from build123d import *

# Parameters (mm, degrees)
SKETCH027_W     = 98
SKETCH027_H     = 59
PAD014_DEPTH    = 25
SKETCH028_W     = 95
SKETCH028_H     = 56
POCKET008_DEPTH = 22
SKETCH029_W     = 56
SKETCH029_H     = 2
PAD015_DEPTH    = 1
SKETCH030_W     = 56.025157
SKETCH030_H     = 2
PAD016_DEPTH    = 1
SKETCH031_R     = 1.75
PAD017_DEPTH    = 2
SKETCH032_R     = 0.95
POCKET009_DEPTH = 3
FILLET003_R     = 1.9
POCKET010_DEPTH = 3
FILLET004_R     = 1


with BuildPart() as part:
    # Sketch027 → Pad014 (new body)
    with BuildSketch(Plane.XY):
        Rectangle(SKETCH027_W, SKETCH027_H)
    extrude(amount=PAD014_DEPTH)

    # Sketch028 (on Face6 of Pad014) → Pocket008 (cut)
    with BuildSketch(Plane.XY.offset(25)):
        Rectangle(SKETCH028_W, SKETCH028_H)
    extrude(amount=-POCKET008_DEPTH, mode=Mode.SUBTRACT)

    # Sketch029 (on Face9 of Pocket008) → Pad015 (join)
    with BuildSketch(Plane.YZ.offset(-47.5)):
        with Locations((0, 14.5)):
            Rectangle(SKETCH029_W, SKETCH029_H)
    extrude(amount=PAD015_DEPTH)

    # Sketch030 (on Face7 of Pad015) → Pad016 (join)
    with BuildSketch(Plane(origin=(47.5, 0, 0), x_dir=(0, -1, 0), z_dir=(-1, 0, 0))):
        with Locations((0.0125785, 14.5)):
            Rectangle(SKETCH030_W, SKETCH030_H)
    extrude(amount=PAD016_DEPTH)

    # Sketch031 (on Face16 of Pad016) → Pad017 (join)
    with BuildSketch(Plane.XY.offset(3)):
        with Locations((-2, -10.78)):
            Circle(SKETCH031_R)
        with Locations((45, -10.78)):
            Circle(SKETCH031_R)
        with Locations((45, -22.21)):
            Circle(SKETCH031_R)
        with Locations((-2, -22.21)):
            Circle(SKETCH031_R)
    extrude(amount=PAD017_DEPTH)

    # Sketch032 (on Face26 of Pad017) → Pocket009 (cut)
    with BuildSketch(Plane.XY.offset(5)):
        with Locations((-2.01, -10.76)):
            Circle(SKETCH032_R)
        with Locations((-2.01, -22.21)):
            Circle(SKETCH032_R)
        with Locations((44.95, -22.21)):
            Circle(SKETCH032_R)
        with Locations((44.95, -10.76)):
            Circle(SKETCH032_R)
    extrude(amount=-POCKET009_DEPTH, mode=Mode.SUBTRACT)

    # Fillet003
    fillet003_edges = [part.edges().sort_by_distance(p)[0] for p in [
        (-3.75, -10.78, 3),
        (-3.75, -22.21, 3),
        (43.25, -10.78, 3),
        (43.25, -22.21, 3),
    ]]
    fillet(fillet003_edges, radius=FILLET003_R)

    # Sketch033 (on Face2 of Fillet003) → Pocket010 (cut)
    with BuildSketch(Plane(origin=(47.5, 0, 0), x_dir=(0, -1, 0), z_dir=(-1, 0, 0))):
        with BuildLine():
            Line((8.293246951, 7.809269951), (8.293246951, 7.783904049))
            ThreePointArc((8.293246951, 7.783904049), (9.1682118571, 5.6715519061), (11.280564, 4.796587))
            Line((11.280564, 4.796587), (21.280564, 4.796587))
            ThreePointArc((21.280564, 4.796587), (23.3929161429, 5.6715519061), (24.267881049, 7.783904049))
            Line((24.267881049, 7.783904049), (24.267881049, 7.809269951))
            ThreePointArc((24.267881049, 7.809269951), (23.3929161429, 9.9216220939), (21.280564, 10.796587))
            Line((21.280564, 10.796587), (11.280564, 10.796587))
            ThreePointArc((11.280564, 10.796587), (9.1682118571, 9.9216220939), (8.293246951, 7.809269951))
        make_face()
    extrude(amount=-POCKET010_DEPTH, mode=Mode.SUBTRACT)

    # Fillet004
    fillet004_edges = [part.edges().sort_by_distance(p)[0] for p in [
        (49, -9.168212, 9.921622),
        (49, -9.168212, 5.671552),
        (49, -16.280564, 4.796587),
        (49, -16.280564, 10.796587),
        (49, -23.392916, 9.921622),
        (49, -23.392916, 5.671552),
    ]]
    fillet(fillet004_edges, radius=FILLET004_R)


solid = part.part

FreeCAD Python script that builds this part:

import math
import FreeCAD as App
import Part
import Sketcher

V = App.Vector


def edges_at(feature, points):
    """Names of the edges that pass closest to the given points."""
    edges = feature.Shape.Edges
    near = lambda p: min(range(len(edges)), key=lambda i: edges[i].distToShape(Part.Vertex(*p))[0])
    return sorted({f"Edge{near(p) + 1}" for p in points})


def add_polygon(sketch, points):
    """Adds a closed chain of lines whose ends are joined by coincident constraints."""
    first, n = sketch.GeometryCount, len(points)
    for a, b in zip(points, points[1:] + points[:1]):
        sketch.addGeometry(Part.LineSegment(App.Vector(*a, 0), App.Vector(*b, 0)), False)
    for i in range(n):
        sketch.addConstraint(Sketcher.Constraint("Coincident", first + i, 2, first + (i + 1) % n, 1))

doc = App.newDocument("Part")
body = doc.addObject("PartDesign::Body", "Body")

# Sketch on XY plane
sketch1 = doc.addObject("Sketcher::SketchObject", "Sketch")
body.addObject(sketch1)
sketch1.AttachmentSupport = (doc.XY_Plane, [""])
sketch1.MapMode = "FlatFace"
add_polygon(sketch1, [(-49, 30), (-49, -30), (49, -30), (49, 30)])  # lines 0-3
sketch1.addConstraint([
    Sketcher.Constraint("Vertical", 0),
    Sketcher.Constraint("Horizontal", 1),
    Sketcher.Constraint("Vertical", 2),
    Sketcher.Constraint("Horizontal", 3),
    Sketcher.Constraint("Symmetric", 0, 2, 2, 2, -1, 1),
    Sketcher.Constraint("DistanceX", 1, 1, 1, 2, 98.0),
    Sketcher.Constraint("DistanceY", 0, 2, 0, 1, 59.0),
])
pad1 = doc.addObject("PartDesign::Pad", "Pad")
body.addObject(pad1)
pad1.Profile = sketch1
pad1.Length = 25

# Sketch on XY plane
sketch2 = doc.addObject("Sketcher::SketchObject", "Sketch001")
body.addObject(sketch2)
sketch2.AttachmentSupport = (doc.XY_Plane, [""])
sketch2.MapMode = "FlatFace"
sketch2.AttachmentOffset = App.Placement(V(0, 0, 25), App.Rotation())
add_polygon(sketch2, [(-48, 28), (-48, -28), (48, -28), (48, 28)])  # lines 0-3
sketch2.addConstraint([
    Sketcher.Constraint("Vertical", 0),
    Sketcher.Constraint("Horizontal", 1),
    Sketcher.Constraint("Vertical", 2),
    Sketcher.Constraint("Horizontal", 3),
    Sketcher.Constraint("Symmetric", 0, 2, 2, 2, -1, 1),
    Sketcher.Constraint("DistanceX", 1, 1, 1, 2, 95.0),
    Sketcher.Constraint("DistanceY", 0, 2, 0, 1, 56.0),
])
pocket1 = doc.addObject("PartDesign::Pocket", "Pocket")
body.addObject(pocket1)
pocket1.Profile = sketch2
pocket1.Length = 22

# Sketch on YZ plane
sketch3 = doc.addObject("Sketcher::SketchObject", "Sketch002")
body.addObject(sketch3)
sketch3.AttachmentSupport = (doc.YZ_Plane, [""])
sketch3.MapMode = "FlatFace"
sketch3.AttachmentOffset = App.Placement(V(0, 0, -47.5), App.Rotation())
add_polygon(sketch3, [(-28, 15.5), (-28, 13.5), (28, 13.5), (28, 15.5)])  # lines 0-3
sketch3.addConstraint([
    Sketcher.Constraint("Vertical", 0),
    Sketcher.Constraint("Horizontal", 1),
    Sketcher.Constraint("Vertical", 2),
    Sketcher.Constraint("Horizontal", 3),
    Sketcher.Constraint("DistanceX", 1, 1, 1, 2, 56.0),
    Sketcher.Constraint("DistanceY", 0, 2, 0, 1, 2.0),
    Sketcher.Constraint("DistanceX", 0, 2, -1, 1, 28.0),
    Sketcher.Constraint("DistanceY", -1, 1, 0, 2, 13.5),
])
pad2 = doc.addObject("PartDesign::Pad", "Pad001")
body.addObject(pad2)
pad2.Profile = sketch3
pad2.Length = 1

# Sketch on YZ plane
sketch4 = doc.addObject("Sketcher::SketchObject", "Sketch003")
body.addObject(sketch4)
sketch4.AttachmentSupport = (doc.YZ_Plane, [""])
sketch4.MapMode = "FlatFace"
sketch4.AttachmentOffset = App.Placement(V(0, 0, 47.5), App.Rotation())
add_polygon(sketch4, [(28, 15.5), (28, 13.5), (-28, 13.5), (-28, 15.5)])  # lines 0-3
sketch4.addConstraint([
    Sketcher.Constraint("Vertical", 0),
    Sketcher.Constraint("Horizontal", 1),
    Sketcher.Constraint("Vertical", 2),
    Sketcher.Constraint("Horizontal", 3),
    Sketcher.Constraint("DistanceY", 0, 2, 0, 1, 2.0),
    Sketcher.Constraint("DistanceX", -1, 1, 0, 2, 28.0),
    Sketcher.Constraint("DistanceY", -1, 1, 0, 2, 13.5),
    Sketcher.Constraint("DistanceX", 1, 2, 1, 1, 56.025157),
])
pad3 = doc.addObject("PartDesign::Pad", "Pad002")
body.addObject(pad3)
pad3.Profile = sketch4
pad3.Length = 1
pad3.Reversed = True

# Sketch on XY plane
sketch5 = doc.addObject("Sketcher::SketchObject", "Sketch004")
body.addObject(sketch5)
sketch5.AttachmentSupport = (doc.XY_Plane, [""])
sketch5.MapMode = "FlatFace"
sketch5.AttachmentOffset = App.Placement(V(0, 0, 3), App.Rotation())
sketch5.addGeometry([
    Part.Circle(V(-2, -10.8, 0), V(0, 0, 1), 1.8),
    Part.Circle(V(45, -10.8, 0), V(0, 0, 1), 1.8),
    Part.Circle(V(45, -22.2, 0), V(0, 0, 1), 1.8),
    Part.Circle(V(-2, -22.2, 0), V(0, 0, 1), 1.8),
], False)
sketch5.addConstraint([
    Sketcher.Constraint("Equal", 0, 1),
    Sketcher.Constraint("Equal", 1, 2),
    Sketcher.Constraint("Equal", 2, 3),
    Sketcher.Constraint("Horizontal", 0, 3, 1, 3),
    Sketcher.Constraint("Horizontal", 2, 3, 3, 3),
    Sketcher.Constraint("Vertical", 1, 3, 2, 3),
    Sketcher.Constraint("Vertical", 0, 3, 3, 3),
    Sketcher.Constraint("Diameter", 0, 3.5),
    Sketcher.Constraint("DistanceX", 0, 3, -1, 1, 2.0),
    Sketcher.Constraint("DistanceX", -1, 1, 1, 3, 45.0),
    Sketcher.Constraint("DistanceY", 0, 3, -1, 1, 10.78),
    Sketcher.Constraint("DistanceY", 2, 3, -1, 1, 22.21),
])
pad4 = doc.addObject("PartDesign::Pad", "Pad003")
body.addObject(pad4)
pad4.Profile = sketch5
pad4.Length = 2

# Sketch on XY plane
sketch6 = doc.addObject("Sketcher::SketchObject", "Sketch005")
body.addObject(sketch6)
sketch6.AttachmentSupport = (doc.XY_Plane, [""])
sketch6.MapMode = "FlatFace"
sketch6.AttachmentOffset = App.Placement(V(0, 0, 5), App.Rotation())
sketch6.addGeometry([
    Part.Circle(V(-2, -10.8, 0), V(0, 0, 1), 0.9),
    Part.Circle(V(-2, -22.2, 0), V(0, 0, 1), 0.9),
    Part.Circle(V(45, -22.2, 0), V(0, 0, 1), 0.9),
    Part.Circle(V(45, -10.8, 0), V(0, 0, 1), 0.9),
], False)
sketch6.addConstraint([
    Sketcher.Constraint("Equal", 0, 1),
    Sketcher.Constraint("Equal", 1, 2),
    Sketcher.Constraint("Equal", 2, 3),
    Sketcher.Constraint("Horizontal", 1, 3, 2, 3),
    Sketcher.Constraint("Horizontal", 0, 3, 3, 3),
    Sketcher.Constraint("Vertical", 0, 3, 1, 3),
    Sketcher.Constraint("Vertical", 2, 3, 3, 3),
    Sketcher.Constraint("Diameter", 0, 1.9),
    Sketcher.Constraint("DistanceX", 0, 3, -1, 1, 2.01),
    Sketcher.Constraint("DistanceY", 0, 3, -1, 1, 10.76),
    Sketcher.Constraint("DistanceY", 1, 3, -1, 1, 22.21),
    Sketcher.Constraint("DistanceX", -1, 1, 2, 3, 44.95),
])
pocket2 = doc.addObject("PartDesign::Pocket", "Pocket001")
body.addObject(pocket2)
pocket2.Profile = sketch6
pocket2.Length = 3
doc.recompute()

fillet = doc.addObject("PartDesign::Fillet", "Fillet")
body.addObject(fillet)
fillet.Base = (pocket2, edges_at(pocket2, [
    (-3.75, -10.78, 3),
    (-3.75, -22.21, 3),
    (43.25, -10.78, 3),
    (43.25, -22.21, 3),
]))
fillet.Radius = 1.9

# Sketch on YZ plane
sketch7 = doc.addObject("Sketcher::SketchObject", "Sketch006")
body.addObject(sketch7)
sketch7.AttachmentSupport = (doc.YZ_Plane, [""])
sketch7.MapMode = "FlatFace"
sketch7.AttachmentOffset = App.Placement(V(0, 0, 47.5), App.Rotation())
sketch7.addGeometry([
    Part.LineSegment(V(-8.293, 7.809, 0), V(-8.293, 7.784, 0)),  # 0
    Part.ArcOfCircle(Part.Circle(V(-11.281, 7.784, 0), V(0, 0, 1), 2.987), math.radians(-90), math.radians(0)),  # 1
    Part.LineSegment(V(-11.281, 4.797, 0), V(-21.281, 4.797, 0)),  # 2
    Part.ArcOfCircle(Part.Circle(V(-21.281, 7.784, 0), V(0, 0, 1), 2.987), math.radians(180), math.radians(270)),  # 3
    Part.LineSegment(V(-24.268, 7.784, 0), V(-24.268, 7.809, 0)),  # 4
    Part.ArcOfCircle(Part.Circle(V(-21.281, 7.809, 0), V(0, 0, 1), 2.987), math.radians(90), math.radians(180)),  # 5
    Part.LineSegment(V(-21.281, 10.797, 0), V(-11.281, 10.797, 0)),  # 6
    Part.ArcOfCircle(Part.Circle(V(-11.281, 7.809, 0), V(0, 0, 1), 2.987), math.radians(0), math.radians(90)),  # 7
], False)
sketch7.addConstraint([
    Sketcher.Constraint("Tangent", 0, 2, 1, 2),
    Sketcher.Constraint("Tangent", 1, 1, 2, 1),
    Sketcher.Constraint("Tangent", 2, 2, 3, 2),
    Sketcher.Constraint("Tangent", 3, 1, 4, 1),
    Sketcher.Constraint("Tangent", 4, 2, 5, 2),
    Sketcher.Constraint("Tangent", 5, 1, 6, 1),
    Sketcher.Constraint("Tangent", 6, 2, 7, 2),
    Sketcher.Constraint("Tangent", 7, 1, 0, 1),
    Sketcher.Constraint("Vertical", 0),
    Sketcher.Constraint("Horizontal", 2),
    Sketcher.Constraint("Vertical", 4),
    Sketcher.Constraint("Horizontal", 6),
    Sketcher.Constraint("Equal", 1, 3),
    Sketcher.Constraint("Equal", 3, 5),
    Sketcher.Constraint("Equal", 5, 7),
    Sketcher.Constraint("DistanceX", 2, 2, 2, 1, 10.0),
    Sketcher.Constraint("DistanceY", 2, 2, 5, 1, 6.0),
    Sketcher.Constraint("Radius", 1, 2.987317),
    Sketcher.Constraint("DistanceY", -1, 1, 5, 3, 7.80927),
    Sketcher.Constraint("DistanceX", 3, 1, -1, 1, 24.267881),
])
pocket3 = doc.addObject("PartDesign::Pocket", "Pocket002")
body.addObject(pocket3)
pocket3.Profile = sketch7
pocket3.Length = 3
pocket3.Reversed = True
doc.recompute()

fillet2 = doc.addObject("PartDesign::Fillet", "Fillet001")
body.addObject(fillet2)
fillet2.Base = (pocket3, edges_at(pocket3, [
    (49, -9.168, 9.922),
    (49, -9.168, 5.672),
    (49, -16.281, 4.797),
    (49, -16.281, 10.797),
    (49, -23.393, 9.922),
    (49, -23.393, 5.672),
]))
fillet2.Radius = 1

doc.recompute()
